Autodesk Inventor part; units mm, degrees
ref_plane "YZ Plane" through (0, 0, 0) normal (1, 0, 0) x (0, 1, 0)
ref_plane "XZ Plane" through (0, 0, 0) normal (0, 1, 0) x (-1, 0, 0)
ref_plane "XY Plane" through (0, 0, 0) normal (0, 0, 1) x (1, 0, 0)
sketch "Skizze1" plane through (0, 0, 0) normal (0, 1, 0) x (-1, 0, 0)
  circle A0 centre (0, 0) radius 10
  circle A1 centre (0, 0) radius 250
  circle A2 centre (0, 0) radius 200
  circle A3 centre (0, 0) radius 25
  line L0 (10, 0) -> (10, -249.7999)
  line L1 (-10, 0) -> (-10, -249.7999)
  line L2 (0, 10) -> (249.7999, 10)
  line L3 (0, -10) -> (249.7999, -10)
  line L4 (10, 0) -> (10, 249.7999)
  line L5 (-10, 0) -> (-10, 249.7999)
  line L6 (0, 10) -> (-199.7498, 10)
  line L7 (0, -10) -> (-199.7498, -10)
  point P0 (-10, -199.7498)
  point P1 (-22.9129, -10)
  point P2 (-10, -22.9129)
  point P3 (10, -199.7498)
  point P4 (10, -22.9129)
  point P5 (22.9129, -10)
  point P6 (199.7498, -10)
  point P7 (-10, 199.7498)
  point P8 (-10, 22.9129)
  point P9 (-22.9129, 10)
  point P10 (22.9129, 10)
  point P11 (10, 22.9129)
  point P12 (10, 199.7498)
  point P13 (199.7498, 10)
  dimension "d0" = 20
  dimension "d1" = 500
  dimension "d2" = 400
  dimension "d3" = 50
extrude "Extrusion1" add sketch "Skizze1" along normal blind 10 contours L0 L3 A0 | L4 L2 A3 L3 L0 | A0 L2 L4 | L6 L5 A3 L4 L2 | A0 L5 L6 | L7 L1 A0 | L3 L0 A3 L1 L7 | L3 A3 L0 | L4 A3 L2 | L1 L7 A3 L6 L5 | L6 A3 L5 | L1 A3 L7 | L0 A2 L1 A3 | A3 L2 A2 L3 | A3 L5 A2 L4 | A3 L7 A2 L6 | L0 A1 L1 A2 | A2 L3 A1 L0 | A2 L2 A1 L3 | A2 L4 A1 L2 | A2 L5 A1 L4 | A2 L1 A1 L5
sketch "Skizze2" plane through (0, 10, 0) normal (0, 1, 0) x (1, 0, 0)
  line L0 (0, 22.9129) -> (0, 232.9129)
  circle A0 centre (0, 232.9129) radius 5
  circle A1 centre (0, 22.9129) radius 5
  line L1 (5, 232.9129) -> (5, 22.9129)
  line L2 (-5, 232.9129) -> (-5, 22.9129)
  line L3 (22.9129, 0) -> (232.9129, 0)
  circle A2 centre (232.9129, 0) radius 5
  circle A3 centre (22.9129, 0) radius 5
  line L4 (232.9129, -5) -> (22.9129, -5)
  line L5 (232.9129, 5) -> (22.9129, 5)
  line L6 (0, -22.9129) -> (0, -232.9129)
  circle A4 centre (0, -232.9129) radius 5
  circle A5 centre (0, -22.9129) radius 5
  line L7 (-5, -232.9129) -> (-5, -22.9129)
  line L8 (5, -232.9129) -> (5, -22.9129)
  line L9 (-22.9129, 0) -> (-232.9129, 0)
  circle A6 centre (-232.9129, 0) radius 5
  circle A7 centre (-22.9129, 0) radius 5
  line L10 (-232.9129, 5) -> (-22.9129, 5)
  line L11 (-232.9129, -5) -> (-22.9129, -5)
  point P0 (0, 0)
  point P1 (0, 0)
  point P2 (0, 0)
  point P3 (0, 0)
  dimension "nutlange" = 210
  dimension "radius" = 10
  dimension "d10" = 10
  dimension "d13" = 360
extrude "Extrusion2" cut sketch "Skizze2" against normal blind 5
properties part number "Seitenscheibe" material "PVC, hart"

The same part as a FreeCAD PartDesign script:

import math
import FreeCAD as App
import Part
import Sketcher

V = App.Vector
Q = App.Units.Quantity

doc = App.newDocument("Part")
body = doc.addObject("PartDesign::Body", "Body")

# Sketch on XZ plane
sketch1 = body.newObject("Sketcher::SketchObject", "Sketch")
sketch1.AttachmentSupport = (doc.getObject("XZ_Plane"), [""])
sketch1.MapMode = "FlatFace"
sketch1.addGeometry([
    Part.Circle(V(0, 0, 0), V(0, 0, 1), 250),  # 0
    Part.Circle(V(0, 0, 0), V(0, 0, 1), 10),  # 1
    Part.ArcOfCircle(Part.Circle(V(0, 0, 0), V(0, 0, 1), 25), math.radians(114), math.radians(156)),  # 2
    Part.LineSegment(V(-10, 23, 0), V(-10, 200, 0)),  # 3
    Part.ArcOfCircle(Part.Circle(V(0, 0, 0), V(0, 0, 1), 200), math.radians(93), math.radians(177)),  # 4
    Part.LineSegment(V(-200, 10, 0), V(-23, 10, 0)),  # 5
    Part.LineSegment(V(-23, -10, 0), V(-200, -10, 0)),  # 6
    Part.ArcOfCircle(Part.Circle(V(0, 0, 0), V(0, 0, 1), 200), math.radians(-177), math.radians(-93)),  # 7
    Part.LineSegment(V(-10, -200, 0), V(-10, -23, 0)),  # 8
    Part.ArcOfCircle(Part.Circle(V(0, 0, 0), V(0, 0, 1), 25), math.radians(-156), math.radians(-114)),  # 9
    Part.LineSegment(V(10, -23, 0), V(10, -200, 0)),  # 10
    Part.ArcOfCircle(Part.Circle(V(0, 0, 0), V(0, 0, 1), 200), math.radians(-87), math.radians(-3)),  # 11
    Part.LineSegment(V(200, -10, 0), V(23, -10, 0)),  # 12
    Part.ArcOfCircle(Part.Circle(V(0, 0, 0), V(0, 0, 1), 25), math.radians(-66), math.radians(-24)),  # 13
    Part.ArcOfCircle(Part.Circle(V(0, 0, 0), V(0, 0, 1), 25), math.radians(24), math.radians(66)),  # 14
    Part.LineSegment(V(23, 10, 0), V(200, 10, 0)),  # 15
    Part.ArcOfCircle(Part.Circle(V(0, 0, 0), V(0, 0, 1), 200), math.radians(3), math.radians(87)),  # 16
    Part.LineSegment(V(10, 200, 0), V(10, 23, 0)),  # 17
], False)
sketch1.addConstraint([
    Sketcher.Constraint("Coincident", 2, 1, 3, 1),
    Sketcher.Constraint("Coincident", 3, 2, 4, 1),
    Sketcher.Constraint("Coincident", 4, 2, 5, 1),
    Sketcher.Constraint("Coincident", 5, 2, 2, 2),
    Sketcher.Constraint("Coincident", 6, 2, 7, 1),
    Sketcher.Constraint("Coincident", 7, 2, 8, 1),
    Sketcher.Constraint("Coincident", 8, 2, 9, 2),
    Sketcher.Constraint("Coincident", 9, 1, 6, 1),
    Sketcher.Constraint("Coincident", 10, 2, 11, 1),
    Sketcher.Constraint("Coincident", 11, 2, 12, 1),
    Sketcher.Constraint("Coincident", 12, 2, 13, 2),
    Sketcher.Constraint("Coincident", 13, 1, 10, 1),
    Sketcher.Constraint("Coincident", 14, 1, 15, 1),
    Sketcher.Constraint("Coincident", 15, 2, 16, 1),
    Sketcher.Constraint("Coincident", 16, 2, 17, 1),
    Sketcher.Constraint("Coincident", 17, 2, 14, 2),
    Sketcher.Constraint("Vertical", 3),
    Sketcher.Constraint("Horizontal", 5),
    Sketcher.Constraint("Horizontal", 6),
    Sketcher.Constraint("Vertical", 8),
    Sketcher.Constraint("Vertical", 10),
    Sketcher.Constraint("Horizontal", 12),
    Sketcher.Constraint("Horizontal", 15),
    Sketcher.Constraint("Vertical", 17),
    Sketcher.Constraint("Coincident", 0, 3, -1, 1),
    Sketcher.Constraint("Coincident", 1, 3, -1, 1),
    Sketcher.Constraint("Coincident", 2, 3, -1, 1),
    Sketcher.Constraint("Coincident", 4, 3, -1, 1),
    Sketcher.Constraint("Coincident", 7, 3, -1, 1),
    Sketcher.Constraint("Coincident", 9, 3, -1, 1),
    Sketcher.Constraint("Coincident", 11, 3, -1, 1),
    Sketcher.Constraint("Coincident", 13, 3, -1, 1),
    Sketcher.Constraint("Coincident", 14, 3, -1, 1),
    Sketcher.Constraint("Coincident", 16, 3, -1, 1),
    Sketcher.Constraint("Equal", 4, 7),
    Sketcher.Constraint("Equal", 2, 9),
    Sketcher.Constraint("Equal", 7, 11),
    Sketcher.Constraint("Equal", 9, 13),
    Sketcher.Constraint("Equal", 13, 14),
    Sketcher.Constraint("Equal", 11, 16),
    Sketcher.Constraint("Horizontal", 7, 2, 10, 2),
    Sketcher.Constraint("Horizontal", 9, 1, 11, 2),
    Sketcher.Constraint("Horizontal", 5, 2, 14, 1),
    Sketcher.Constraint("Horizontal", 3, 2, 16, 2),
    Sketcher.Constraint("Vertical", 4, 2, 6, 2),
    Sketcher.Constraint("Vertical", 3, 2, 7, 2),
    Sketcher.Constraint("Equal", 15, 3),
    Sketcher.Constraint("Diameter", 0, Q("500 mm")),
    Sketcher.Constraint("Diameter", 1, Q("20 mm")),
    Sketcher.Constraint("Radius", 2, Q("25 mm")),
    Sketcher.Constraint("Radius", 4, Q("200 mm")),
    Sketcher.Constraint("DistanceY", 6, 2, 4, 2, Q("20 mm")),
])
pad1 = body.newObject("PartDesign::Pad", "Pad")
pad1.Profile = sketch1
pad1.Length = 10
pad1.Reversed = True

# Sketch on XZ plane
sketch2 = body.newObject("Sketcher::SketchObject", "Sketch001")
sketch2.AttachmentSupport = (doc.getObject("XZ_Plane"), [""])
sketch2.MapMode = "FlatFace"
sketch2.AttachmentOffset = App.Placement(V(0, 0, -10), App.Rotation())
sketch2.addGeometry([
    Part.LineSegment(V(-5, -233, 0), V(-5, -23, 0)),  # 0
    Part.ArcOfCircle(Part.Circle(V(0, -23, 0), V(0, 0, 1), 5), math.radians(0), math.radians(180)),  # 1
    Part.LineSegment(V(5, -23, 0), V(5, -233, 0)),  # 2
    Part.ArcOfCircle(Part.Circle(V(0, -233, 0), V(0, 0, 1), 5), math.radians(180), math.radians(360)),  # 3
    Part.LineSegment(V(233, -5, 0), V(23, -5, 0)),  # 4
    Part.ArcOfCircle(Part.Circle(V(23, 0, 0), V(0, 0, 1), 5), math.radians(90), math.radians(270)),  # 5
    Part.LineSegment(V(23, 5, 0), V(233, 5, 0)),  # 6
    Part.ArcOfCircle(Part.Circle(V(233, 0, 0), V(0, 0, 1), 5), math.radians(-90), math.radians(90)),  # 7
    Part.LineSegment(V(5, 233, 0), V(5, 23, 0)),  # 8
    Part.ArcOfCircle(Part.Circle(V(0, 23, 0), V(0, 0, 1), 5), math.radians(180), math.radians(360)),  # 9
    Part.LineSegment(V(-5, 23, 0), V(-5, 233, 0)),  # 10
    Part.ArcOfCircle(Part.Circle(V(0, 233, 0), V(0, 0, 1), 5), math.radians(0), math.radians(180)),  # 11
    Part.LineSegment(V(-233, 5, 0), V(-23, 5, 0)),  # 12
    Part.ArcOfCircle(Part.Circle(V(-23, 0, 0), V(0, 0, 1), 5), math.radians(-90), math.radians(90)),  # 13
    Part.LineSegment(V(-23, -5, 0), V(-233, -5, 0)),  # 14
    Part.ArcOfCircle(Part.Circle(V(-233, 0, 0), V(0, 0, 1), 5), math.radians(90), math.radians(270)),  # 15
], False)
sketch2.addConstraint([
    Sketcher.Constraint("Tangent", 0, 2, 1, 2),
    Sketcher.Constraint("Tangent", 1, 1, 2, 1),
    Sketcher.Constraint("Tangent", 2, 2, 3, 2),
    Sketcher.Constraint("Tangent", 3, 1, 0, 1),
    Sketcher.Constraint("Tangent", 4, 2, 5, 2),
    Sketcher.Constraint("Tangent", 5, 1, 6, 1),
    Sketcher.Constraint("Tangent", 6, 2, 7, 2),
    Sketcher.Constraint("Tangent", 7, 1, 4, 1),
    Sketcher.Constraint("Tangent", 8, 2, 9, 2),
    Sketcher.Constraint("Tangent", 9, 1, 10, 1),
    Sketcher.Constraint("Tangent", 10, 2, 11, 2),
    Sketcher.Constraint("Tangent", 11, 1, 8, 1),
    Sketcher.Constraint("Tangent", 12, 2, 13, 2),
    Sketcher.Constraint("Tangent", 13, 1, 14, 1),
    Sketcher.Constraint("Tangent", 14, 2, 15, 2),
    Sketcher.Constraint("Tangent", 15, 1, 12, 1),
    Sketcher.Constraint("Vertical", 0),
    Sketcher.Constraint("Vertical", 2),
    Sketcher.Constraint("Horizontal", 4),
    Sketcher.Constraint("Horizontal", 6),
    Sketcher.Constraint("Vertical", 8),
    Sketcher.Constraint("Vertical", 10),
    Sketcher.Constraint("Horizontal", 12),
    Sketcher.Constraint("Horizontal", 14),
    Sketcher.Constraint("Equal", 3, 5),
    Sketcher.Constraint("Equal", 7, 9),
    Sketcher.Constraint("Equal", 11, 13),
    Sketcher.Constraint("Symmetric", 1, 3, 9, 3, -1, 1),
    Sketcher.Constraint("Symmetric", 5, 3, 13, 3, -1, 1),
    Sketcher.Constraint("Symmetric", 7, 3, 15, 3, -2),
    Sketcher.Constraint("Symmetric", 3, 3, 11, 3, -1),
    Sketcher.Constraint("Equal", 14, 0),
    Sketcher.Constraint("Radius", 1, Q("5 mm")),
    Sketcher.Constraint("DistanceX", 4, 2, 4, 1, Q("210 mm")),
    Sketcher.Constraint("DistanceY", 1, 3, -1, 1, Q("22.913 mm")),
    Sketcher.Constraint("DistanceX", -1, 1, 5, 3, Q("22.913 mm")),
])
pocket1 = body.newObject("PartDesign::Pocket", "Pocket")
pocket1.Profile = sketch2
pocket1.Length = 5
pocket1.Reversed = True

doc.recompute()
